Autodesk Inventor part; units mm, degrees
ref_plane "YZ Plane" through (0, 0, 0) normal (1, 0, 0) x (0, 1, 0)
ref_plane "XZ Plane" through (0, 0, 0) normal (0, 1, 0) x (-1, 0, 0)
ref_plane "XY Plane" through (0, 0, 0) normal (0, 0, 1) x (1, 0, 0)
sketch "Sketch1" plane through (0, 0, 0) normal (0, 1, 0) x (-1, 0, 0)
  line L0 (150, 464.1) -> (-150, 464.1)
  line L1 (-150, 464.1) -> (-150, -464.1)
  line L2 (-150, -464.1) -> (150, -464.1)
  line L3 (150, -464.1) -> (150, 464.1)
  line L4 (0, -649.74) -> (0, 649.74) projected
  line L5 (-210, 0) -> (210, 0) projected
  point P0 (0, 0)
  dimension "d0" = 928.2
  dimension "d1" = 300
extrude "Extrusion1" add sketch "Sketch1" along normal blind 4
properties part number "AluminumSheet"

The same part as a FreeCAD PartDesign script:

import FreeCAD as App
import Part
import Sketcher
Q = App.Units.Quantity


def add_polygon(sketch, points):
    """Adds a closed chain of lines whose ends are joined by coincident constraints."""
    first, n = sketch.GeometryCount, len(points)
    for a, b in zip(points, points[1:] + points[:1]):
        sketch.addGeometry(Part.LineSegment(App.Vector(*a, 0), App.Vector(*b, 0)), False)
    for i in range(n):
        sketch.addConstraint(Sketcher.Constraint("Coincident", first + i, 2, first + (i + 1) % n, 1))

doc = App.newDocument("Part")
body = doc.addObject("PartDesign::Body", "Body")

sketch1 = body.newObject("Sketcher::SketchObject", "Sketch")
sketch1.AttachmentSupport = (doc.getObject("XZ_Plane"), [""])
sketch1.MapMode = "FlatFace"
add_polygon(sketch1, [(-150, 464), (150, 464), (150, -464), (-150, -464)])
sketch1.addConstraint(Sketcher.Constraint("Horizontal", 0))
sketch1.addConstraint(Sketcher.Constraint("Vertical", 1))
sketch1.addConstraint(Sketcher.Constraint("Horizontal", 2))
sketch1.addConstraint(Sketcher.Constraint("Vertical", 3))
sketch1.addConstraint(Sketcher.Constraint("Symmetric", 0, 2, 2, 2, -1, 1))
sketch1.addConstraint(Sketcher.Constraint("DistanceX", 0, 1, 0, 2, Q("300 mm")))
sketch1.addConstraint(Sketcher.Constraint("DistanceY", 1, 2, 1, 1, Q("928.2 mm")))
pad1 = body.newObject("PartDesign::Pad", "Pad")
pad1.Profile = sketch1
pad1.Length = 4
pad1.Reversed = True

doc.recompute()
